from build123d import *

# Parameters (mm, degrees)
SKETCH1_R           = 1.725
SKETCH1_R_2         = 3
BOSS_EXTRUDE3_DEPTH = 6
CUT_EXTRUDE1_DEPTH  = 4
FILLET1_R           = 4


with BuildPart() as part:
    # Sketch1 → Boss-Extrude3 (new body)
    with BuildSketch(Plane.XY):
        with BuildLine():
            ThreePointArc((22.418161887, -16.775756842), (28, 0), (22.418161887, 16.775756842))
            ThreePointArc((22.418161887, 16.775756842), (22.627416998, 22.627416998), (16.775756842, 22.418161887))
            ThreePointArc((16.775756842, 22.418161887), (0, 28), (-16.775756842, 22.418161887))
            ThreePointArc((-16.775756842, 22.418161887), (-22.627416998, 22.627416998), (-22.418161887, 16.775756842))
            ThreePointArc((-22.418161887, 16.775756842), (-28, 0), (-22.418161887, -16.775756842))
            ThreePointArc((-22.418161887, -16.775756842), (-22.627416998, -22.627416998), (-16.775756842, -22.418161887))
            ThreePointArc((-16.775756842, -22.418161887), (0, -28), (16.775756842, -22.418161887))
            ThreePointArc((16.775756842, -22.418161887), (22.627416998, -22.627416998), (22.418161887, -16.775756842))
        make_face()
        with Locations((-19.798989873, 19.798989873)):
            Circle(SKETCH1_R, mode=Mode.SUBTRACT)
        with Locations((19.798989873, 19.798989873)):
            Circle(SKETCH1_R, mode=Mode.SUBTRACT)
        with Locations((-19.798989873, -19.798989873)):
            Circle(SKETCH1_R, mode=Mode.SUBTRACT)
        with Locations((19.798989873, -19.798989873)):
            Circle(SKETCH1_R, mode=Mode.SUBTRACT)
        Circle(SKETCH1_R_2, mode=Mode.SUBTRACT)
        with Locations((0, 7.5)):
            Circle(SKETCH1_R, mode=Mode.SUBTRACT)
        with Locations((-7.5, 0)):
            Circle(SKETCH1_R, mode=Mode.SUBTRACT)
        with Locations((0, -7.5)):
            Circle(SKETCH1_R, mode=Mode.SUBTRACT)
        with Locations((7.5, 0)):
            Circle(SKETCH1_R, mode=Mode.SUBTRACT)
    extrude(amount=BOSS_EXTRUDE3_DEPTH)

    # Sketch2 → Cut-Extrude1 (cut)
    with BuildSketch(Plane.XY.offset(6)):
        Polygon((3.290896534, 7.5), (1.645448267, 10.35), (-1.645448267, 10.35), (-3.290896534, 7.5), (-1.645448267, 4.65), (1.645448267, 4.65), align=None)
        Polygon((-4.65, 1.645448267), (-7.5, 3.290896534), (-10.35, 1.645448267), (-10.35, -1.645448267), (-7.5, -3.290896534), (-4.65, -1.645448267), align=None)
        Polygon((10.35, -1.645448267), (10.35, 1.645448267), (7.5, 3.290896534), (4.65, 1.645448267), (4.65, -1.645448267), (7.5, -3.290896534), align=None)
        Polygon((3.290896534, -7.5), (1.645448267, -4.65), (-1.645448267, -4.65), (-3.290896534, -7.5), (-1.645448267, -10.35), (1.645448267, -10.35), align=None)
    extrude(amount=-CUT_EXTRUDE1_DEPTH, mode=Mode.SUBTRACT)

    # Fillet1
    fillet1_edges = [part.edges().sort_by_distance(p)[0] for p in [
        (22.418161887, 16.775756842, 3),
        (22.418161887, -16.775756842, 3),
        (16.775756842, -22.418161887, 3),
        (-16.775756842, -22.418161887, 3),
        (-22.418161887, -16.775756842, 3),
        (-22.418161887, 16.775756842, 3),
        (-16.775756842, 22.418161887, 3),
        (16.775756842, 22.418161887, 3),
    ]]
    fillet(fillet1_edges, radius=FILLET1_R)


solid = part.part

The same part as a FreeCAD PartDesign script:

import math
import FreeCAD as App
import Part
import Sketcher
Q = App.Units.Quantity


def edges_at(feature, points):
    """Names of the edges that pass closest to the given points."""
    edges = feature.Shape.Edges
    near = lambda p: min(range(len(edges)), key=lambda i: edges[i].distToShape(Part.Vertex(*p))[0])
    return sorted({f"Edge{near(p) + 1}" for p in points})

doc = App.newDocument("Part")
body = doc.addObject("PartDesign::Body", "Body")

# Sketch on XY plane
sketch1 = body.newObject("Sketcher::SketchObject", "Sketch")
sketch1.AttachmentSupport = (doc.getObject("XY_Plane"), [""])
sketch1.MapMode = "FlatFace"
sketch1.addGeometry([
    Part.ArcOfCircle(Part.Circle(App.Vector(0, 0, 0), App.Vector(0, 0, 1), 28), math.radians(-37), math.radians(37)),  # 0
    Part.ArcOfCircle(Part.Circle(App.Vector(19.8, 19.8, 0), App.Vector(0, 0, 1), 4), math.radians(-49), math.radians(139)),  # 1
    Part.ArcOfCircle(Part.Circle(App.Vector(0, 0, 0), App.Vector(0, 0, 1), 28), math.radians(53), math.radians(127)),  # 2
    Part.ArcOfCircle(Part.Circle(App.Vector(-19.8, 19.8, 0), App.Vector(0, 0, 1), 4), math.radians(41), math.radians(229)),  # 3
    Part.ArcOfCircle(Part.Circle(App.Vector(0, 0, 0), App.Vector(0, 0, 1), 28), math.radians(143), math.radians(217)),  # 4
    Part.ArcOfCircle(Part.Circle(App.Vector(-19.8, -19.8, 0), App.Vector(0, 0, 1), 4), math.radians(131), math.radians(319)),  # 5
    Part.ArcOfCircle(Part.Circle(App.Vector(0, 0, 0), App.Vector(0, 0, 1), 28), math.radians(-127), math.radians(-53)),  # 6
    Part.ArcOfCircle(Part.Circle(App.Vector(19.8, -19.8, 0), App.Vector(0, 0, 1), 4), math.radians(-139), math.radians(49)),  # 7
    Part.Circle(App.Vector(-19.8, -19.8, 0), App.Vector(0, 0, 1), 1.7),  # 8
    Part.Circle(App.Vector(19.8, -19.8, 0), App.Vector(0, 0, 1), 1.7),  # 9
    Part.Circle(App.Vector(0, -7.5, 0), App.Vector(0, 0, 1), 1.7),  # 10
    Part.Circle(App.Vector(-7.5, 0, 0), App.Vector(0, 0, 1), 1.7),  # 11
    Part.Circle(App.Vector(-19.8, 19.8, 0), App.Vector(0, 0, 1), 1.7),  # 12
    Part.Circle(App.Vector(0, 0, 0), App.Vector(0, 0, 1), 3),  # 13
    Part.Circle(App.Vector(7.5, 0, 0), App.Vector(0, 0, 1), 1.7),  # 14
    Part.Circle(App.Vector(0, 7.5, 0), App.Vector(0, 0, 1), 1.7),  # 15
    Part.Circle(App.Vector(19.8, 19.8, 0), App.Vector(0, 0, 1), 1.7),  # 16
], False)
sketch1.addConstraint([
    Sketcher.Constraint("Coincident", 0, 2, 1, 1),
    Sketcher.Constraint("Coincident", 1, 2, 2, 1),
    Sketcher.Constraint("Coincident", 2, 2, 3, 1),
    Sketcher.Constraint("Coincident", 3, 2, 4, 1),
    Sketcher.Constraint("Coincident", 4, 2, 5, 1),
    Sketcher.Constraint("Coincident", 5, 2, 6, 1),
    Sketcher.Constraint("Coincident", 6, 2, 7, 1),
    Sketcher.Constraint("Coincident", 7, 2, 0, 1),
    Sketcher.Constraint("Coincident", 0, 3, -1, 1),
    Sketcher.Constraint("Coincident", 2, 3, -1, 1),
    Sketcher.Constraint("Coincident", 4, 3, -1, 1),
    Sketcher.Constraint("Coincident", 6, 3, -1, 1),
    Sketcher.Constraint("Coincident", 13, 3, -1, 1),
    Sketcher.Constraint("Coincident", 8, 3, 5, 3),
    Sketcher.Constraint("Coincident", 9, 3, 7, 3),
    Sketcher.Constraint("Coincident", 12, 3, 3, 3),
    Sketcher.Constraint("Coincident", 16, 3, 1, 3),
    Sketcher.Constraint("Equal", 0, 2),
    Sketcher.Constraint("Equal", 1, 3),
    Sketcher.Constraint("Equal", 2, 4),
    Sketcher.Constraint("Equal", 3, 5),
    Sketcher.Constraint("Equal", 4, 6),
    Sketcher.Constraint("Equal", 5, 7),
    Sketcher.Constraint("Equal", 8, 9),
    Sketcher.Constraint("Equal", 9, 10),
    Sketcher.Constraint("Equal", 10, 11),
    Sketcher.Constraint("Equal", 11, 12),
    Sketcher.Constraint("Equal", 12, 14),
    Sketcher.Constraint("Equal", 14, 15),
    Sketcher.Constraint("Equal", 15, 16),
    Sketcher.Constraint("Symmetric", 1, 3, 5, 3, -1, 1),
    Sketcher.Constraint("Symmetric", 3, 3, 7, 3, -1, 1),
    Sketcher.Constraint("Symmetric", 11, 3, 14, 3, -1, 1),
    Sketcher.Constraint("Symmetric", 10, 3, 15, 3, -1, 1),
    Sketcher.Constraint("Symmetric", 1, 3, 3, 3, -2),
    Sketcher.Constraint("PointOnObject", 10, 3, -2),
    Sketcher.Constraint("PointOnObject", 11, 3, -1),
    Sketcher.Constraint("Diameter", 13, 6.0),
    Sketcher.Constraint("Radius", 0, 28.0),
    Sketcher.Constraint("Radius", 1, 4.0),
    Sketcher.Constraint("Diameter", 8, 3.45),
    Sketcher.Constraint("DistanceY", 10, 3, -1, 1, 7.5),
    Sketcher.Constraint("DistanceX", 11, 3, -1, 1, 7.5),
    Sketcher.Constraint("DistanceX", -1, 1, 1, 3, 19.79899),
    Sketcher.Constraint("DistanceY", -1, 1, 1, 3, 19.79899),
])
pad1 = body.newObject("PartDesign::Pad", "Pad")
pad1.Profile = sketch1
pad1.Length = 6

# Sketch on XY plane
sketch2 = body.newObject("Sketcher::SketchObject", "Sketch001")
sketch2.AttachmentSupport = (doc.getObject("XY_Plane"), [""])
sketch2.MapMode = "FlatFace"
sketch2.AttachmentOffset = App.Placement(App.Vector(0, 0, 6), App.Rotation())
sketch2.addGeometry([
    Part.LineSegment(App.Vector(3.3, 7.5, 0), App.Vector(1.6, 10.3, 0)),  # 0
    Part.LineSegment(App.Vector(1.6, 10.3, 0), App.Vector(-1.6, 10.3, 0)),  # 1
    Part.LineSegment(App.Vector(-1.6, 10.3, 0), App.Vector(-3.3, 7.5, 0)),  # 2
    Part.LineSegment(App.Vector(-3.3, 7.5, 0), App.Vector(-1.6, 4.7, 0)),  # 3
    Part.LineSegment(App.Vector(-1.6, 4.7, 0), App.Vector(1.6, 4.7, 0)),  # 4
    Part.LineSegment(App.Vector(1.6, 4.7, 0), App.Vector(3.3, 7.5, 0)),  # 5
    Part.LineSegment(App.Vector(-4.7, 1.6, 0), App.Vector(-7.5, 3.3, 0)),  # 6
    Part.LineSegment(App.Vector(-7.5, 3.3, 0), App.Vector(-10.3, 1.6, 0)),  # 7
    Part.LineSegment(App.Vector(-10.3, 1.6, 0), App.Vector(-10.3, -1.6, 0)),  # 8
    Part.LineSegment(App.Vector(-10.3, -1.6, 0), App.Vector(-7.5, -3.3, 0)),  # 9
    Part.LineSegment(App.Vector(-7.5, -3.3, 0), App.Vector(-4.7, -1.6, 0)),  # 10
    Part.LineSegment(App.Vector(-4.7, -1.6, 0), App.Vector(-4.7, 1.6, 0)),  # 11
    Part.LineSegment(App.Vector(10.3, -1.6, 0), App.Vector(10.3, 1.6, 0)),  # 12
    Part.LineSegment(App.Vector(10.3, 1.6, 0), App.Vector(7.5, 3.3, 0)),  # 13
    Part.LineSegment(App.Vector(7.5, 3.3, 0), App.Vector(4.7, 1.6, 0)),  # 14
    Part.LineSegment(App.Vector(4.7, 1.6, 0), App.Vector(4.7, -1.6, 0)),  # 15
    Part.LineSegment(App.Vector(4.7, -1.6, 0), App.Vector(7.5, -3.3, 0)),  # 16
    Part.LineSegment(App.Vector(7.5, -3.3, 0), App.Vector(10.3, -1.6, 0)),  # 17
    Part.LineSegment(App.Vector(3.3, -7.5, 0), App.Vector(1.6, -4.7, 0)),  # 18
    Part.LineSegment(App.Vector(1.6, -4.7, 0), App.Vector(-1.6, -4.7, 0)),  # 19
    Part.LineSegment(App.Vector(-1.6, -4.7, 0), App.Vector(-3.3, -7.5, 0)),  # 20
    Part.LineSegment(App.Vector(-3.3, -7.5, 0), App.Vector(-1.6, -10.3, 0)),  # 21
    Part.LineSegment(App.Vector(-1.6, -10.3, 0), App.Vector(1.6, -10.3, 0)),  # 22
    Part.LineSegment(App.Vector(1.6, -10.3, 0), App.Vector(3.3, -7.5, 0)),  # 23
], False)
sketch2.addConstraint([
    Sketcher.Constraint("Coincident", 0, 2, 1, 1),
    Sketcher.Constraint("Coincident", 1, 2, 2, 1),
    Sketcher.Constraint("Coincident", 2, 2, 3, 1),
    Sketcher.Constraint("Coincident", 3, 2, 4, 1),
    Sketcher.Constraint("Coincident", 4, 2, 5, 1),
    Sketcher.Constraint("Coincident", 5, 2, 0, 1),
    Sketcher.Constraint("Coincident", 6, 2, 7, 1),
    Sketcher.Constraint("Coincident", 7, 2, 8, 1),
    Sketcher.Constraint("Coincident", 8, 2, 9, 1),
    Sketcher.Constraint("Coincident", 9, 2, 10, 1),
    Sketcher.Constraint("Coincident", 10, 2, 11, 1),
    Sketcher.Constraint("Coincident", 11, 2, 6, 1),
    Sketcher.Constraint("Coincident", 12, 2, 13, 1),
    Sketcher.Constraint("Coincident", 13, 2, 14, 1),
    Sketcher.Constraint("Coincident", 14, 2, 15, 1),
    Sketcher.Constraint("Coincident", 15, 2, 16, 1),
    Sketcher.Constraint("Coincident", 16, 2, 17, 1),
    Sketcher.Constraint("Coincident", 17, 2, 12, 1),
    Sketcher.Constraint("Coincident", 18, 2, 19, 1),
    Sketcher.Constraint("Coincident", 19, 2, 20, 1),
    Sketcher.Constraint("Coincident", 20, 2, 21, 1),
    Sketcher.Constraint("Coincident", 21, 2, 22, 1),
    Sketcher.Constraint("Coincident", 22, 2, 23, 1),
    Sketcher.Constraint("Coincident", 23, 2, 18, 1),
    Sketcher.Constraint("Horizontal", 1),
    Sketcher.Constraint("Horizontal", 4),
    Sketcher.Constraint("Vertical", 8),
    Sketcher.Constraint("Vertical", 11),
    Sketcher.Constraint("Vertical", 12),
    Sketcher.Constraint("Vertical", 15),
    Sketcher.Constraint("Horizontal", 19),
    Sketcher.Constraint("Horizontal", 22),
    Sketcher.Constraint("Symmetric", 8, 2, 12, 2, -1, 1),
    Sketcher.Constraint("Symmetric", 9, 2, 13, 2, -1, 1),
    Sketcher.Constraint("Symmetric", 10, 2, 14, 2, -1, 1),
    Sketcher.Constraint("Symmetric", 6, 2, 16, 2, -1, 1),
    Sketcher.Constraint("Symmetric", 3, 2, 18, 2, -1, 1),
    Sketcher.Constraint("Symmetric", 5, 2, 20, 2, -1, 1),
    Sketcher.Constraint("Symmetric", 0, 2, 21, 2, -1, 1),
    Sketcher.Constraint("Symmetric", 2, 2, 23, 2, -1, 1),
    Sketcher.Constraint("Symmetric", 2, 2, 5, 2, -2),
    Sketcher.Constraint("Symmetric", 6, 2, 13, 2, -2),
    Sketcher.Constraint("Parallel", 0, 3),
    Sketcher.Constraint("Parallel", 2, 5),
    Sketcher.Constraint("Perpendicular", 5, 6),
    Sketcher.Constraint("Perpendicular", 3, 7),
    Sketcher.Constraint("Parallel", 6, 9),
    Sketcher.Constraint("Parallel", 7, 10),
    Sketcher.Constraint("Parallel", 13, 16),
    Sketcher.Constraint("Parallel", 14, 17),
    Sketcher.Constraint("Perpendicular", 16, 20),
    Sketcher.Constraint("Parallel", 20, 23),
    Sketcher.Constraint("Horizontal", 8, 2, 10, 2),
    Sketcher.Constraint("Horizontal", 7, 2, 11, 2),
    Sketcher.Constraint("Vertical", 1, 2, 3, 2),
    Sketcher.Constraint("Equal", 22, 8),
    Sketcher.Constraint("Equal", 5, 6),
    Sketcher.Constraint("Angle", 0, Q("120 deg")),
    Sketcher.Constraint("DistanceY", -1, 1, 2, 2, 7.5),
    Sketcher.Constraint("DistanceX", 6, 2, -1, 1, 7.5),
    Sketcher.Constraint("DistanceY", 3, 2, 1, 2, 5.7),
    Sketcher.Constraint("DistanceX", 1, 2, 1, 1, 3.290897),
])
pocket1 = body.newObject("PartDesign::Pocket", "Pocket")
pocket1.Profile = sketch2
pocket1.Length = 4
doc.recompute()

fillet = body.newObject("PartDesign::Fillet", "Fillet")
fillet.Base = (pocket1, edges_at(pocket1, [
    (22.418, 16.776, 3),
    (22.418, -16.776, 3),
    (16.776, -22.418, 3),
    (-16.776, -22.418, 3),
    (-22.418, -16.776, 3),
    (-22.418, 16.776, 3),
    (-16.776, 22.418, 3),
    (16.776, 22.418, 3),
]))
fillet.Radius = 4

doc.recompute()
